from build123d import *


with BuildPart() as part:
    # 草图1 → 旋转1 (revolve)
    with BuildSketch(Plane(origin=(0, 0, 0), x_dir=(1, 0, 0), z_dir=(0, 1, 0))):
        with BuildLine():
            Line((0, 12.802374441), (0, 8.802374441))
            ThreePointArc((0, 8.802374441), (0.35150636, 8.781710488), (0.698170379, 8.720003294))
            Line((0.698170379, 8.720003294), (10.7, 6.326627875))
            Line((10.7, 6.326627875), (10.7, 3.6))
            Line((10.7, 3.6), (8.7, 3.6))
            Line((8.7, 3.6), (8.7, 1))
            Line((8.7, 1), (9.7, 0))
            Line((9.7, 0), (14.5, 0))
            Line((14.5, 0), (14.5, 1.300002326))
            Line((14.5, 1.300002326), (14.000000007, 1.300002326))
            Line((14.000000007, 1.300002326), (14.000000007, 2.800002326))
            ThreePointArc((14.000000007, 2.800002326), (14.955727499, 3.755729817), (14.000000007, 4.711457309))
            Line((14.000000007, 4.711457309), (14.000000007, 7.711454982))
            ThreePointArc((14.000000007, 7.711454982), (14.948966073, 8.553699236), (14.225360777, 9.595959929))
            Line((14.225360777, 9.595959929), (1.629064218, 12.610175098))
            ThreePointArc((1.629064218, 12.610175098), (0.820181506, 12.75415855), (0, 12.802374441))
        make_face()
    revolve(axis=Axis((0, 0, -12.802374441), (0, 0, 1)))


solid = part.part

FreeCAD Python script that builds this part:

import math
import FreeCAD as App
import Part
import Sketcher
from FreeCAD import Vector
Q = App.Units.Quantity

doc = App.newDocument("Part")
body = doc.addObject("PartDesign::Body", "Body")

sketch1 = body.newObject("Sketcher::SketchObject", "Sketch")
sketch1.AttachmentSupport = (doc.getObject("XZ_Plane"), [""])
sketch1.MapMode = "FlatFace"
sketch1.addGeometry(Part.LineSegment(Vector(0, -12.802374, 0), Vector(0, -8.802374, 0)), False)
sketch1.addGeometry(Part.ArcOfCircle(Part.Circle(Vector(0, -5.802374, 0), Vector(0, 0, 1), 3), math.radians(-90), math.radians(-76.542534)), False)
sketch1.addGeometry(Part.LineSegment(Vector(0.69817, -8.720003, 0), Vector(10.7, -6.326628, 0)), False)
sketch1.addGeometry(Part.LineSegment(Vector(10.7, -6.326628, 0), Vector(10.7, -3.6, 0)), False)
sketch1.addGeometry(Part.LineSegment(Vector(10.7, -3.6, 0), Vector(8.7, -3.6, 0)), False)
sketch1.addGeometry(Part.LineSegment(Vector(8.7, -3.6, 0), Vector(8.7, -1, 0)), False)
sketch1.addGeometry(Part.LineSegment(Vector(8.7, -1, 0), Vector(9.7, 0, 0)), False)
sketch1.addGeometry(Part.LineSegment(Vector(9.7, 0, 0), Vector(14.5, 0, 0)), False)
sketch1.addGeometry(Part.LineSegment(Vector(14.5, 0, 0), Vector(14.5, -1.300002, 0)), False)
sketch1.addGeometry(Part.LineSegment(Vector(14.5, -1.300002, 0), Vector(14, -1.300002, 0)), False)
sketch1.addGeometry(Part.LineSegment(Vector(14, -1.300002, 0), Vector(14, -2.800002, 0)), False)
sketch1.addGeometry(Part.ArcOfCircle(Part.Circle(Vector(14, -3.75573, 0), Vector(0, 0, 1), 0.955727), math.radians(-90), math.radians(90)), False)
sketch1.addGeometry(Part.LineSegment(Vector(14, -4.711457, 0), Vector(14, -7.711455, 0)), False)
sketch1.addGeometry(Part.ArcOfCircle(Part.Circle(Vector(14, -8.667182, 0), Vector(0, 0, 1), 0.955727), math.radians(-76.361201), math.radians(90)), False)
sketch1.addGeometry(Part.LineSegment(Vector(14.225361, -9.59596, 0), Vector(1.629064, -12.610175, 0)), False)
sketch1.addGeometry(Part.ArcOfCircle(Part.Circle(Vector(0, -5.802374, 0), Vector(0, 0, 1), 7), math.radians(-90), math.radians(-76.542534)), False)
sketch1.addConstraint(Sketcher.Constraint("Coincident", 0, 2, 1, 1))
sketch1.addConstraint(Sketcher.Constraint("Tangent", 1, 2, 2, 1))
sketch1.addConstraint(Sketcher.Constraint("Coincident", 2, 2, 3, 1))
sketch1.addConstraint(Sketcher.Constraint("Coincident", 3, 2, 4, 1))
sketch1.addConstraint(Sketcher.Constraint("Coincident", 4, 2, 5, 1))
sketch1.addConstraint(Sketcher.Constraint("Coincident", 5, 2, 6, 1))
sketch1.addConstraint(Sketcher.Constraint("Coincident", 6, 2, 7, 1))
sketch1.addConstraint(Sketcher.Constraint("Coincident", 7, 2, 8, 1))
sketch1.addConstraint(Sketcher.Constraint("Coincident", 8, 2, 9, 1))
sketch1.addConstraint(Sketcher.Constraint("Coincident", 9, 2, 10, 1))
sketch1.addConstraint(Sketcher.Constraint("Coincident", 10, 2, 11, 2))
sketch1.addConstraint(Sketcher.Constraint("Coincident", 11, 1, 12, 1))
sketch1.addConstraint(Sketcher.Constraint("Coincident", 12, 2, 13, 2))
sketch1.addConstraint(Sketcher.Constraint("Coincident", 13, 1, 14, 1))
sketch1.addConstraint(Sketcher.Constraint("Tangent", 14, 2, 15, 2))
sketch1.addConstraint(Sketcher.Constraint("Coincident", 15, 1, 0, 1))
sketch1.addConstraint(Sketcher.Constraint("Vertical", 0))
sketch1.addConstraint(Sketcher.Constraint("Vertical", 3))
sketch1.addConstraint(Sketcher.Constraint("Horizontal", 4))
sketch1.addConstraint(Sketcher.Constraint("Vertical", 5))
sketch1.addConstraint(Sketcher.Constraint("Horizontal", 7))
sketch1.addConstraint(Sketcher.Constraint("Vertical", 8))
sketch1.addConstraint(Sketcher.Constraint("Horizontal", 9))
sketch1.addConstraint(Sketcher.Constraint("Vertical", 10))
sketch1.addConstraint(Sketcher.Constraint("Vertical", 12))
sketch1.addConstraint(Sketcher.Constraint("Coincident", 15, 3, 1, 3))
sketch1.addConstraint(Sketcher.Constraint("Equal", 11, 13))
sketch1.addConstraint(Sketcher.Constraint("PointOnObject", 1, 3, -2))
sketch1.addConstraint(Sketcher.Constraint("PointOnObject", 0, 2, -2))
sketch1.addConstraint(Sketcher.Constraint("PointOnObject", 6, 2, -1))
sketch1.addConstraint(Sketcher.Constraint("Parallel", 2, 14))
sketch1.addConstraint(Sketcher.Constraint("Vertical", 11, 3, 13, 3))
sketch1.addConstraint(Sketcher.Constraint("Vertical", 13, 3, 9, 2))
sketch1.addConstraint(Sketcher.Constraint("Vertical", 10, 2, 11, 1))
sketch1.addConstraint(Sketcher.Constraint("Radius", 1, Q("3 mm")))
sketch1.addConstraint(Sketcher.Constraint("Radius", 15, Q("7 mm")))
sketch1.addConstraint(Sketcher.Constraint("DistanceX", 4, 2, 4, 1, Q("2 mm")))
sketch1.addConstraint(Sketcher.Constraint("Angle", 6, Q("45 deg")))
sketch1.addConstraint(Sketcher.Constraint("DistanceX", 7, 1, 7, 2, Q("4.8 mm")))
sketch1.addConstraint(Sketcher.Constraint("DistanceX", 9, 2, 9, 1, Q("0.5 mm")))
sketch1.addConstraint(Sketcher.Constraint("DistanceY", 5, 1, 5, 2, Q("2.6 mm")))
sketch1.addConstraint(Sketcher.Constraint("DistanceY", 10, 2, 10, 1, Q("1.5 mm")))
sketch1.addConstraint(Sketcher.Constraint("DistanceX", -1, 1, 11, 3, Q("14 mm")))
sketch1.addConstraint(Sketcher.Constraint("DistanceY", 5, 2, -1, 1, Q("1 mm")))
sketch1.addConstraint(Sketcher.Constraint("Radius", 11, Q("0.955727 mm")))
sketch1.addConstraint(Sketcher.Constraint("DistanceY", 2, 2, 11, 3, Q("2.570898 mm")))
sketch1.addConstraint(Sketcher.Constraint("DistanceY", 14, 2, 0, 2, Q("3.807801 mm")))
sketch1.addConstraint(Sketcher.Constraint("Distance", 14, Q("12.951918 mm")))
sketch1.addConstraint(Sketcher.Constraint("DistanceY", 3, 1, 3, 2, Q("2.726628 mm")))
revolution = body.newObject("PartDesign::Revolution", "Revolution")
revolution.Profile = sketch1
revolution.ReferenceAxis = (sketch1, ["V_Axis"])
revolution.Angle = 360

doc.recompute()
